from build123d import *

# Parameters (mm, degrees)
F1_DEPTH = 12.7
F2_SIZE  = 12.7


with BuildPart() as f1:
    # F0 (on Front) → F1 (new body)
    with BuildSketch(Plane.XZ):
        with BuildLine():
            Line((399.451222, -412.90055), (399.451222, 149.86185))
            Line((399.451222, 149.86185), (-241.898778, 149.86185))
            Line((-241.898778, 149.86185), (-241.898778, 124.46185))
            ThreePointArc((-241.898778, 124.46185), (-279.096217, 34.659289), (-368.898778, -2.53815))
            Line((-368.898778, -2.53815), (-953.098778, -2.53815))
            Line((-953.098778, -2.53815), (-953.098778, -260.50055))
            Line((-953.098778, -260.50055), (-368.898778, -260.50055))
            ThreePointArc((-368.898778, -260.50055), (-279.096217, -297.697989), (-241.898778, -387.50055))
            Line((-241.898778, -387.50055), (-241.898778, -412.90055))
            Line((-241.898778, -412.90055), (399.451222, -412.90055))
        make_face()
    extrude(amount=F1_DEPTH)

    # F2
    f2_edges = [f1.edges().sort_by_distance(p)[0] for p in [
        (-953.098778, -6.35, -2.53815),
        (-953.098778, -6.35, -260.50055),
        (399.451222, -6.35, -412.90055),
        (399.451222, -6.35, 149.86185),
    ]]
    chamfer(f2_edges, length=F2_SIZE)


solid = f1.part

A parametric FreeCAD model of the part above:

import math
import FreeCAD as App
import Part
import Sketcher
Q = App.Units.Quantity


def edges_at(feature, points):
    """Names of the edges that pass closest to the given points."""
    edges = feature.Shape.Edges
    near = lambda p: min(range(len(edges)), key=lambda i: edges[i].distToShape(Part.Vertex(*p))[0])
    return sorted({f"Edge{near(p) + 1}" for p in points})

doc = App.newDocument("Part")
body = doc.addObject("PartDesign::Body", "Body")

sketch1 = body.newObject("Sketcher::SketchObject", "Sketch")
sketch1.AttachmentSupport = (doc.getObject("XZ_Plane"), [""])
sketch1.MapMode = "FlatFace"
sketch1.addGeometry([
    Part.LineSegment(App.Vector(399, -413, 0), App.Vector(399, 150, 0)),
    Part.LineSegment(App.Vector(399, 150, 0), App.Vector(-242, 150, 0)),
    Part.LineSegment(App.Vector(-242, 150, 0), App.Vector(-242, 124, 0)),
    Part.ArcOfCircle(Part.Circle(App.Vector(-369, 124, 0), App.Vector(0, 0, 1), 127), math.radians(-90), math.radians(0)),
    Part.LineSegment(App.Vector(-369, -3, 0), App.Vector(-953, -3, 0)),
    Part.LineSegment(App.Vector(-953, -3, 0), App.Vector(-953, -261, 0)),
    Part.LineSegment(App.Vector(-953, -261, 0), App.Vector(-369, -261, 0)),
    Part.ArcOfCircle(Part.Circle(App.Vector(-369, -388, 0), App.Vector(0, 0, 1), 127), math.radians(0), math.radians(90)),
    Part.LineSegment(App.Vector(-242, -388, 0), App.Vector(-242, -413, 0)),
    Part.LineSegment(App.Vector(-242, -413, 0), App.Vector(399, -413, 0)),
], False)
sketch1.addConstraint([
    Sketcher.Constraint("Coincident", 0, 2, 1, 1),
    Sketcher.Constraint("Coincident", 1, 2, 2, 1),
    Sketcher.Constraint("Tangent", 2, 2, 3, 2),
    Sketcher.Constraint("Tangent", 3, 1, 4, 1),
    Sketcher.Constraint("Coincident", 4, 2, 5, 1),
    Sketcher.Constraint("Coincident", 5, 2, 6, 1),
    Sketcher.Constraint("Tangent", 6, 2, 7, 2),
    Sketcher.Constraint("Tangent", 7, 1, 8, 1),
    Sketcher.Constraint("Coincident", 8, 2, 9, 1),
    Sketcher.Constraint("Coincident", 9, 2, 0, 1),
    Sketcher.Constraint("Vertical", 0),
    Sketcher.Constraint("Horizontal", 1),
    Sketcher.Constraint("Vertical", 2),
    Sketcher.Constraint("Horizontal", 4),
    Sketcher.Constraint("Vertical", 5),
    Sketcher.Constraint("Horizontal", 6),
    Sketcher.Constraint("Vertical", 8),
    Sketcher.Constraint("Horizontal", 9),
    Sketcher.Constraint("Equal", 3, 7),
    Sketcher.Constraint("Vertical", 3, 3, 7, 3),
    Sketcher.Constraint("Equal", 2, 8),
    Sketcher.Constraint("Radius", 3, Q("5 in")),
    Sketcher.Constraint("DistanceX", 4, 2, 4, 1, Q("23 in")),
    Sketcher.Constraint("DistanceY", 2, 2, 2, 1, Q("1 in")),
    Sketcher.Constraint("DistanceX", 1, 2, 1, 1, Q("25.25 in")),
    Sketcher.Constraint("DistanceY", 0, 1, 0, 2, Q("22.156 in")),
    Sketcher.Constraint("DistanceX", 3, 3, -1, 1, 368.898779),
    Sketcher.Constraint("DistanceY", -1, 1, 3, 3, 124.461851),
])
pad1 = body.newObject("PartDesign::Pad", "Pad")
pad1.Profile = sketch1
pad1.Length = Q("0.5 in")
doc.recompute()

chamfer = body.newObject("PartDesign::Chamfer", "Chamfer")
chamfer.Base = (pad1, edges_at(pad1, [
    (-953.099, -6.35, -2.538),
    (-953.099, -6.35, -260.501),
    (399.451, -6.35, -412.901),
    (399.451, -6.35, 149.862),
]))
chamfer.Size = Q("0.5 in")

doc.recompute()
